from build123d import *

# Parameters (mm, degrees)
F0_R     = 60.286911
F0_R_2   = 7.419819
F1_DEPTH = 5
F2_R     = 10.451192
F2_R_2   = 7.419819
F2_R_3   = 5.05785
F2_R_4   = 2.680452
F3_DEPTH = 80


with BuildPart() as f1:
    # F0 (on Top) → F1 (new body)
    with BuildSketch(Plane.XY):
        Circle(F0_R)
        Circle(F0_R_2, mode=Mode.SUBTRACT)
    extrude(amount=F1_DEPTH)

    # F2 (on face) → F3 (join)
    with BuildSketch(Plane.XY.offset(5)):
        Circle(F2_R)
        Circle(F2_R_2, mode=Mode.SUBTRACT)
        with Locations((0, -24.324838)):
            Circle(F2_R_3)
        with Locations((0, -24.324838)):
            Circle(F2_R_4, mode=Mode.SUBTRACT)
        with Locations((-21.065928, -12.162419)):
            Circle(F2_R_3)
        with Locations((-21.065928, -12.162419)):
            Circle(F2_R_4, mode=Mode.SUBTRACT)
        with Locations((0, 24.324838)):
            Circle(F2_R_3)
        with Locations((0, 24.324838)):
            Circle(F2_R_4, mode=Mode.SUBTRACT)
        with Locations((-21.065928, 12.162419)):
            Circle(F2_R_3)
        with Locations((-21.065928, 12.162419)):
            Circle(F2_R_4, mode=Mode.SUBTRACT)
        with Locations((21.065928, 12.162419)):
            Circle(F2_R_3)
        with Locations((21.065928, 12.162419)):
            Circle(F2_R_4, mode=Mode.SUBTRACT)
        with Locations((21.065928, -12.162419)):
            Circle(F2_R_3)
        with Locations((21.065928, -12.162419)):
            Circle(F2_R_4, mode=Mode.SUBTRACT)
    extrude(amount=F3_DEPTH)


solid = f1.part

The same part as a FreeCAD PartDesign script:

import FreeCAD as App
import Part
import Sketcher

V = App.Vector

doc = App.newDocument("Part")
body = doc.addObject("PartDesign::Body", "Body")

sketch1 = doc.addObject("Sketcher::SketchObject", "Sketch")
body.addObject(sketch1)
sketch1.AttachmentSupport = (doc.XY_Plane, [""])
sketch1.MapMode = "FlatFace"
sketch1.addGeometry([
    Part.Circle(V(0, 0, 0), V(0, 0, 1), 60.286911),
    Part.Circle(V(0, 0, 0), V(0, 0, 1), 7.419819),
], False)
sketch1.addConstraint([
    Sketcher.Constraint("Coincident", 0, 3, -1, 1),
    Sketcher.Constraint("Coincident", 1, 3, -1, 1),
    Sketcher.Constraint("Diameter", 1, 14.839638),
    Sketcher.Constraint("Diameter", 0, 120.573822),
])
pad1 = doc.addObject("PartDesign::Pad", "Pad")
body.addObject(pad1)
pad1.Profile = sketch1
pad1.Length = 5

sketch2 = doc.addObject("Sketcher::SketchObject", "Sketch001")
body.addObject(sketch2)
sketch2.AttachmentSupport = (doc.XY_Plane, [""])
sketch2.MapMode = "FlatFace"
sketch2.AttachmentOffset = App.Placement(V(0, 0, 5), App.Rotation())
sketch2.addGeometry([
    Part.Circle(V(0, 0, 0), V(0, 0, 1), 10.451192),
    Part.Circle(V(0, 0, 0), V(0, 0, 1), 7.419819),
    Part.Circle(V(0, -24.324838, 0), V(0, 0, 1), 5.05785),
    Part.Circle(V(0, -24.324838, 0), V(0, 0, 1), 2.680452),
    Part.Circle(V(-21.065928, -12.162419, 0), V(0, 0, 1), 5.05785),
    Part.Circle(V(-21.065928, -12.162419, 0), V(0, 0, 1), 2.680452),
    Part.Circle(V(0, 24.324838, 0), V(0, 0, 1), 5.05785),
    Part.Circle(V(0, 24.324838, 0), V(0, 0, 1), 2.680452),
    Part.Circle(V(-21.065928, 12.162419, 0), V(0, 0, 1), 5.05785),
    Part.Circle(V(-21.065928, 12.162419, 0), V(0, 0, 1), 2.680452),
    Part.Circle(V(21.065928, 12.162419, 0), V(0, 0, 1), 5.05785),
    Part.Circle(V(21.065928, 12.162419, 0), V(0, 0, 1), 2.680452),
    Part.Circle(V(21.065928, -12.162419, 0), V(0, 0, 1), 5.05785),
    Part.Circle(V(21.065928, -12.162419, 0), V(0, 0, 1), 2.680452),
], False)
sketch2.addConstraint([
    Sketcher.Constraint("Coincident", 0, 3, -1, 1),
    Sketcher.Constraint("Coincident", 1, 3, -1, 1),
    Sketcher.Constraint("Coincident", 3, 3, 2, 3),
    Sketcher.Constraint("Coincident", 5, 3, 4, 3),
    Sketcher.Constraint("Coincident", 7, 3, 6, 3),
    Sketcher.Constraint("Coincident", 9, 3, 8, 3),
    Sketcher.Constraint("Coincident", 11, 3, 10, 3),
    Sketcher.Constraint("Coincident", 13, 3, 12, 3),
    Sketcher.Constraint("Equal", 2, 4),
    Sketcher.Constraint("Equal", 3, 5),
    Sketcher.Constraint("Equal", 4, 6),
    Sketcher.Constraint("Equal", 5, 7),
    Sketcher.Constraint("Equal", 6, 8),
    Sketcher.Constraint("Equal", 7, 9),
    Sketcher.Constraint("Equal", 8, 10),
    Sketcher.Constraint("Equal", 9, 11),
    Sketcher.Constraint("Equal", 10, 12),
    Sketcher.Constraint("Equal", 11, 13),
    Sketcher.Constraint("Symmetric", 2, 3, 6, 3, -1, 1),
    Sketcher.Constraint("Symmetric", 4, 3, 10, 3, -1, 1),
    Sketcher.Constraint("Symmetric", 8, 3, 12, 3, -1, 1),
    Sketcher.Constraint("Symmetric", 8, 3, 10, 3, -2),
    Sketcher.Constraint("PointOnObject", 2, 3, -2),
    Sketcher.Constraint("Diameter", 2, 10.1157),
    Sketcher.Constraint("Diameter", 1, 14.839638),
    Sketcher.Constraint("Diameter", 0, 20.902384),
    Sketcher.Constraint("Diameter", 3, 5.360904),
    Sketcher.Constraint("DistanceY", 2, 3, -1, 1, 24.324838),
    Sketcher.Constraint("DistanceY", 4, 3, -1, 1, 12.162419),
    Sketcher.Constraint("DistanceX", 4, 3, -1, 1, 21.065928),
])
pad2 = doc.addObject("PartDesign::Pad", "Pad001")
body.addObject(pad2)
pad2.Profile = sketch2
pad2.Length = 80

doc.recompute()
